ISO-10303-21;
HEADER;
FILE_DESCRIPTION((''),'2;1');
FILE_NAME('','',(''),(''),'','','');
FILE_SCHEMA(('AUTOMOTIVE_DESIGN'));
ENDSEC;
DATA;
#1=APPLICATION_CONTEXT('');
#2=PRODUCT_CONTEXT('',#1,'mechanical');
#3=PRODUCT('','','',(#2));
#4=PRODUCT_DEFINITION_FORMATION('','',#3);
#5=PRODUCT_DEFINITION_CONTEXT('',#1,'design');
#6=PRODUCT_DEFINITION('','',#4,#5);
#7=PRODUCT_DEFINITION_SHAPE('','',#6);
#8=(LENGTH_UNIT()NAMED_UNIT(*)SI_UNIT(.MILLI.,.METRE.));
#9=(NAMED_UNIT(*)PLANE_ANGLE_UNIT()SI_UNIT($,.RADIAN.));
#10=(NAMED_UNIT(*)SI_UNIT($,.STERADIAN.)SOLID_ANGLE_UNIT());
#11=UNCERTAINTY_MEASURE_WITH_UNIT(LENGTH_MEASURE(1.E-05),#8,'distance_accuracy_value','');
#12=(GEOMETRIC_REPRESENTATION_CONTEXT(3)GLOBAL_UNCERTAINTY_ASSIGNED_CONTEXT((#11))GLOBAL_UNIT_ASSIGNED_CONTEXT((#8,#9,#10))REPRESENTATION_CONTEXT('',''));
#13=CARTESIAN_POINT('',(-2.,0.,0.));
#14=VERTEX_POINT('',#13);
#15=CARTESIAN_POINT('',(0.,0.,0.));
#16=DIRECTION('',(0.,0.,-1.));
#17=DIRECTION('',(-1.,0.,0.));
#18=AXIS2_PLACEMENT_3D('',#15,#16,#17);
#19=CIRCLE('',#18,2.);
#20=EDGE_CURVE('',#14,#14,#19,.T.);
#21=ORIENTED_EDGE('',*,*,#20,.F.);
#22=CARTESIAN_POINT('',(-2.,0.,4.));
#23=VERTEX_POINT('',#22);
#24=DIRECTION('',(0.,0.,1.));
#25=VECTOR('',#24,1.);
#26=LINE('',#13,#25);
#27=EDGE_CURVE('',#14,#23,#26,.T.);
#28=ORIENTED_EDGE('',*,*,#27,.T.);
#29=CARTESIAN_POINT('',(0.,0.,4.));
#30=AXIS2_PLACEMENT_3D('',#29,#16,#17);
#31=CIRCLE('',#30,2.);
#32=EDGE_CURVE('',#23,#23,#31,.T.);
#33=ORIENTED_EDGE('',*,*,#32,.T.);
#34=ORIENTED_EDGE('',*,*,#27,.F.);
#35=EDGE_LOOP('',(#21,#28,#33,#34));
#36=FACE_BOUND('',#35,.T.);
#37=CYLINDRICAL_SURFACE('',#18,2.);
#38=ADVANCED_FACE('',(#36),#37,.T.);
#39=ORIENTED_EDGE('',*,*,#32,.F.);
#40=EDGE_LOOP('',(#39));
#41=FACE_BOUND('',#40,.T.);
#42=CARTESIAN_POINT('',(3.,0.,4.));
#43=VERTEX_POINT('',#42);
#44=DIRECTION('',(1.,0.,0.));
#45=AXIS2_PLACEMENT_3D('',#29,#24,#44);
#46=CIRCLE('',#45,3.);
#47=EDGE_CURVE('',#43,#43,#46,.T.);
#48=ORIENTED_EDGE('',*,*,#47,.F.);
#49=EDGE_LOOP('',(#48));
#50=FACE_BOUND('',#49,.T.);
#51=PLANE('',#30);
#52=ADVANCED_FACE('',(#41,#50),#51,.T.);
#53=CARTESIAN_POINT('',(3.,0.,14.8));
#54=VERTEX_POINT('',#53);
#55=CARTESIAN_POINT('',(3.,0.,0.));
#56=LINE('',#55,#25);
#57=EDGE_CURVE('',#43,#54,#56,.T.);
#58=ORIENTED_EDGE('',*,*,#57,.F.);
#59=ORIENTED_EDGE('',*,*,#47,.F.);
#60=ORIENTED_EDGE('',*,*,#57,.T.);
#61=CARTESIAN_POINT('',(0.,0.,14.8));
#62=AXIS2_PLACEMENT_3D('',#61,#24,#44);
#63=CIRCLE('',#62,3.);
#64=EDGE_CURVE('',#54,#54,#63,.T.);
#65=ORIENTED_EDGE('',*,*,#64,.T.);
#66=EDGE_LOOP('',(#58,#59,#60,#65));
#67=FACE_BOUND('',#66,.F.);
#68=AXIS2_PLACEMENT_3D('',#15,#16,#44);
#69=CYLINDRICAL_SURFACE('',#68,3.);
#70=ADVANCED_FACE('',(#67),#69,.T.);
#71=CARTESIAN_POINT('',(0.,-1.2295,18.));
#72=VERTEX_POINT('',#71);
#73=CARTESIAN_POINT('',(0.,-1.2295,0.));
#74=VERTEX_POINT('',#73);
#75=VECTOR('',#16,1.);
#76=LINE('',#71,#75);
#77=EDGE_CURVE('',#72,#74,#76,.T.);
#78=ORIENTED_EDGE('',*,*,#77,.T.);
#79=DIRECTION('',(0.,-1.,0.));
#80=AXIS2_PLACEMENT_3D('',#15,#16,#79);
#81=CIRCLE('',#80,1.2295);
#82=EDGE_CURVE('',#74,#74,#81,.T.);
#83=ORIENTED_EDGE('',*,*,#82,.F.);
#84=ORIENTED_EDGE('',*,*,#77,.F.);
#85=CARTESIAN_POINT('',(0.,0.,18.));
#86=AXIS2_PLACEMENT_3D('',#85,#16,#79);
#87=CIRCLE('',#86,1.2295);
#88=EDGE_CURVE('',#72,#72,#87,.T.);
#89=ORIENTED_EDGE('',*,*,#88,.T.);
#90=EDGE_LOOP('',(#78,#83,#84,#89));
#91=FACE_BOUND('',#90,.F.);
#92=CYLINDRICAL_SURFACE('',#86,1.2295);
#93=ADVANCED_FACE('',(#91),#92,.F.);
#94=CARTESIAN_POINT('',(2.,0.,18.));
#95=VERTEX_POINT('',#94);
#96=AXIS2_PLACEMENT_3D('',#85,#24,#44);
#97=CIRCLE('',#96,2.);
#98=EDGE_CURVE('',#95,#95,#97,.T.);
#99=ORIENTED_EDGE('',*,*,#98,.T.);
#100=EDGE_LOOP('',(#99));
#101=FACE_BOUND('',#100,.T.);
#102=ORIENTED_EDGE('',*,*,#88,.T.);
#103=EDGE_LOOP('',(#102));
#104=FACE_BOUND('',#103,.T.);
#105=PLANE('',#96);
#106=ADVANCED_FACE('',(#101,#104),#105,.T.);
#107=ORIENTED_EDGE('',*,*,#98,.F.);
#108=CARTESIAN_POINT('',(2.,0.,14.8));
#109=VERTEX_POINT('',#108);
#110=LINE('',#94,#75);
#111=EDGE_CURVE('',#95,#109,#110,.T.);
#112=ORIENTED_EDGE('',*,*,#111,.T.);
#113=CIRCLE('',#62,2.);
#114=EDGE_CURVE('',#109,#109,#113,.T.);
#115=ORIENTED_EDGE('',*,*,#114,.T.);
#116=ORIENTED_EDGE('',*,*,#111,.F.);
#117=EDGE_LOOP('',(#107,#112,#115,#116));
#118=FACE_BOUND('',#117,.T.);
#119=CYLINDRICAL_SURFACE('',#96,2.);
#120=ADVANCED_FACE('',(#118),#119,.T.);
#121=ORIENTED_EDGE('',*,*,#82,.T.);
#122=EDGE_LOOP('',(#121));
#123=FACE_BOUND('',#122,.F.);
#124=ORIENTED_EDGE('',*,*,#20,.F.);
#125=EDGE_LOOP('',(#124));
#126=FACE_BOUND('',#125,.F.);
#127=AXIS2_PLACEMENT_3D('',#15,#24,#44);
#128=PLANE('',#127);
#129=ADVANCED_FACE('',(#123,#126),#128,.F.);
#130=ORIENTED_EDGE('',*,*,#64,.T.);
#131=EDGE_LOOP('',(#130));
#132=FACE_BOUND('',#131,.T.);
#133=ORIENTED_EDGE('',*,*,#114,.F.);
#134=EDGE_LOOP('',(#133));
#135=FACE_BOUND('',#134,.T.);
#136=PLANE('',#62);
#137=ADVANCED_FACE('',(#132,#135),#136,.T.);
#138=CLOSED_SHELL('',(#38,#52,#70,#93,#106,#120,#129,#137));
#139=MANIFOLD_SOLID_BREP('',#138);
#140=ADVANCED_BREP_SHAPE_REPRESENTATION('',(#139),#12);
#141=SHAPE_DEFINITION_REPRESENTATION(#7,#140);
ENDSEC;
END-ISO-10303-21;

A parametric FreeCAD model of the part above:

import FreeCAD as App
import Part
import Sketcher
from FreeCAD import Vector

doc = App.newDocument("Part")
body = doc.addObject("PartDesign::Body", "Body")

sketch1 = doc.addObject("Sketcher::SketchObject", "Sketch")
body.addObject(sketch1)
sketch1.AttachmentSupport = (doc.XY_Plane, [""])
sketch1.MapMode = "FlatFace"
sketch1.addGeometry(Part.Circle(Vector(0, 0, 0), Vector(0, 0, 1), 3), False)
sketch1.addConstraint([
    Sketcher.Constraint("Coincident", 0, 3, -1, 1),
    Sketcher.Constraint("Diameter", 0, 6.0),
])
pad1 = doc.addObject("PartDesign::Pad", "Pad")
body.addObject(pad1)
pad1.Profile = sketch1
pad1.Length = 18

sketch2 = doc.addObject("Sketcher::SketchObject", "Sketch001")
body.addObject(sketch2)
sketch2.AttachmentSupport = (doc.XY_Plane, [""])
sketch2.MapMode = "FlatFace"
sketch2.AttachmentOffset = App.Placement(Vector(0, 0, 18), App.Rotation())
sketch2.addGeometry(Part.Circle(Vector(0, 0, 0), Vector(0, 0, 1), 1.2), False)
sketch2.addConstraint([
    Sketcher.Constraint("Coincident", 0, 3, -1, 1),
    Sketcher.Constraint("Diameter", 0, 2.459),
])
doc.recompute()
hole = doc.addObject("PartDesign::Hole", "Hole")
body.addObject(hole)
hole.Profile = sketch2
hole.ThreadType = "None"
hole.Diameter = 2.459
hole.DepthType = "ThroughAll"

sketch3 = doc.addObject("Sketcher::SketchObject", "Sketch002")
body.addObject(sketch3)
sketch3.AttachmentSupport = (doc.XY_Plane, [""])
sketch3.MapMode = "FlatFace"
sketch3.AttachmentOffset = App.Placement(Vector(0, 0, 18), App.Rotation())
sketch3.addGeometry([
    Part.Circle(Vector(0, 0, 0), Vector(0, 0, 1), 3),
    Part.Circle(Vector(0, 0, 0), Vector(0, 0, 1), 2),
], False)
sketch3.addConstraint([
    Sketcher.Constraint("Coincident", 0, 3, -1, 1),
    Sketcher.Constraint("Coincident", 1, 3, -1, 1),
    Sketcher.Constraint("Diameter", 1, 4.0),
    Sketcher.Constraint("Diameter", 0, 6.0),
])
pocket1 = doc.addObject("PartDesign::Pocket", "Pocket")
body.addObject(pocket1)
pocket1.Profile = sketch3
pocket1.Length = 3.2

sketch4 = doc.addObject("Sketcher::SketchObject", "Sketch003")
body.addObject(sketch4)
sketch4.AttachmentSupport = (doc.XY_Plane, [""])
sketch4.MapMode = "FlatFace"
sketch4.addGeometry([
    Part.Circle(Vector(0, 0, 0), Vector(0, 0, 1), 3),
    Part.Circle(Vector(0, 0, 0), Vector(0, 0, 1), 2),
], False)
sketch4.addConstraint([
    Sketcher.Constraint("Coincident", 0, 3, -1, 1),
    Sketcher.Constraint("Coincident", 1, 3, -1, 1),
    Sketcher.Constraint("Diameter", 1, 4.0),
    Sketcher.Constraint("Diameter", 0, 6.0),
])
pocket2 = doc.addObject("PartDesign::Pocket", "Pocket001")
body.addObject(pocket2)
pocket2.Profile = sketch4
pocket2.Length = 4
pocket2.Reversed = True

doc.recompute()
